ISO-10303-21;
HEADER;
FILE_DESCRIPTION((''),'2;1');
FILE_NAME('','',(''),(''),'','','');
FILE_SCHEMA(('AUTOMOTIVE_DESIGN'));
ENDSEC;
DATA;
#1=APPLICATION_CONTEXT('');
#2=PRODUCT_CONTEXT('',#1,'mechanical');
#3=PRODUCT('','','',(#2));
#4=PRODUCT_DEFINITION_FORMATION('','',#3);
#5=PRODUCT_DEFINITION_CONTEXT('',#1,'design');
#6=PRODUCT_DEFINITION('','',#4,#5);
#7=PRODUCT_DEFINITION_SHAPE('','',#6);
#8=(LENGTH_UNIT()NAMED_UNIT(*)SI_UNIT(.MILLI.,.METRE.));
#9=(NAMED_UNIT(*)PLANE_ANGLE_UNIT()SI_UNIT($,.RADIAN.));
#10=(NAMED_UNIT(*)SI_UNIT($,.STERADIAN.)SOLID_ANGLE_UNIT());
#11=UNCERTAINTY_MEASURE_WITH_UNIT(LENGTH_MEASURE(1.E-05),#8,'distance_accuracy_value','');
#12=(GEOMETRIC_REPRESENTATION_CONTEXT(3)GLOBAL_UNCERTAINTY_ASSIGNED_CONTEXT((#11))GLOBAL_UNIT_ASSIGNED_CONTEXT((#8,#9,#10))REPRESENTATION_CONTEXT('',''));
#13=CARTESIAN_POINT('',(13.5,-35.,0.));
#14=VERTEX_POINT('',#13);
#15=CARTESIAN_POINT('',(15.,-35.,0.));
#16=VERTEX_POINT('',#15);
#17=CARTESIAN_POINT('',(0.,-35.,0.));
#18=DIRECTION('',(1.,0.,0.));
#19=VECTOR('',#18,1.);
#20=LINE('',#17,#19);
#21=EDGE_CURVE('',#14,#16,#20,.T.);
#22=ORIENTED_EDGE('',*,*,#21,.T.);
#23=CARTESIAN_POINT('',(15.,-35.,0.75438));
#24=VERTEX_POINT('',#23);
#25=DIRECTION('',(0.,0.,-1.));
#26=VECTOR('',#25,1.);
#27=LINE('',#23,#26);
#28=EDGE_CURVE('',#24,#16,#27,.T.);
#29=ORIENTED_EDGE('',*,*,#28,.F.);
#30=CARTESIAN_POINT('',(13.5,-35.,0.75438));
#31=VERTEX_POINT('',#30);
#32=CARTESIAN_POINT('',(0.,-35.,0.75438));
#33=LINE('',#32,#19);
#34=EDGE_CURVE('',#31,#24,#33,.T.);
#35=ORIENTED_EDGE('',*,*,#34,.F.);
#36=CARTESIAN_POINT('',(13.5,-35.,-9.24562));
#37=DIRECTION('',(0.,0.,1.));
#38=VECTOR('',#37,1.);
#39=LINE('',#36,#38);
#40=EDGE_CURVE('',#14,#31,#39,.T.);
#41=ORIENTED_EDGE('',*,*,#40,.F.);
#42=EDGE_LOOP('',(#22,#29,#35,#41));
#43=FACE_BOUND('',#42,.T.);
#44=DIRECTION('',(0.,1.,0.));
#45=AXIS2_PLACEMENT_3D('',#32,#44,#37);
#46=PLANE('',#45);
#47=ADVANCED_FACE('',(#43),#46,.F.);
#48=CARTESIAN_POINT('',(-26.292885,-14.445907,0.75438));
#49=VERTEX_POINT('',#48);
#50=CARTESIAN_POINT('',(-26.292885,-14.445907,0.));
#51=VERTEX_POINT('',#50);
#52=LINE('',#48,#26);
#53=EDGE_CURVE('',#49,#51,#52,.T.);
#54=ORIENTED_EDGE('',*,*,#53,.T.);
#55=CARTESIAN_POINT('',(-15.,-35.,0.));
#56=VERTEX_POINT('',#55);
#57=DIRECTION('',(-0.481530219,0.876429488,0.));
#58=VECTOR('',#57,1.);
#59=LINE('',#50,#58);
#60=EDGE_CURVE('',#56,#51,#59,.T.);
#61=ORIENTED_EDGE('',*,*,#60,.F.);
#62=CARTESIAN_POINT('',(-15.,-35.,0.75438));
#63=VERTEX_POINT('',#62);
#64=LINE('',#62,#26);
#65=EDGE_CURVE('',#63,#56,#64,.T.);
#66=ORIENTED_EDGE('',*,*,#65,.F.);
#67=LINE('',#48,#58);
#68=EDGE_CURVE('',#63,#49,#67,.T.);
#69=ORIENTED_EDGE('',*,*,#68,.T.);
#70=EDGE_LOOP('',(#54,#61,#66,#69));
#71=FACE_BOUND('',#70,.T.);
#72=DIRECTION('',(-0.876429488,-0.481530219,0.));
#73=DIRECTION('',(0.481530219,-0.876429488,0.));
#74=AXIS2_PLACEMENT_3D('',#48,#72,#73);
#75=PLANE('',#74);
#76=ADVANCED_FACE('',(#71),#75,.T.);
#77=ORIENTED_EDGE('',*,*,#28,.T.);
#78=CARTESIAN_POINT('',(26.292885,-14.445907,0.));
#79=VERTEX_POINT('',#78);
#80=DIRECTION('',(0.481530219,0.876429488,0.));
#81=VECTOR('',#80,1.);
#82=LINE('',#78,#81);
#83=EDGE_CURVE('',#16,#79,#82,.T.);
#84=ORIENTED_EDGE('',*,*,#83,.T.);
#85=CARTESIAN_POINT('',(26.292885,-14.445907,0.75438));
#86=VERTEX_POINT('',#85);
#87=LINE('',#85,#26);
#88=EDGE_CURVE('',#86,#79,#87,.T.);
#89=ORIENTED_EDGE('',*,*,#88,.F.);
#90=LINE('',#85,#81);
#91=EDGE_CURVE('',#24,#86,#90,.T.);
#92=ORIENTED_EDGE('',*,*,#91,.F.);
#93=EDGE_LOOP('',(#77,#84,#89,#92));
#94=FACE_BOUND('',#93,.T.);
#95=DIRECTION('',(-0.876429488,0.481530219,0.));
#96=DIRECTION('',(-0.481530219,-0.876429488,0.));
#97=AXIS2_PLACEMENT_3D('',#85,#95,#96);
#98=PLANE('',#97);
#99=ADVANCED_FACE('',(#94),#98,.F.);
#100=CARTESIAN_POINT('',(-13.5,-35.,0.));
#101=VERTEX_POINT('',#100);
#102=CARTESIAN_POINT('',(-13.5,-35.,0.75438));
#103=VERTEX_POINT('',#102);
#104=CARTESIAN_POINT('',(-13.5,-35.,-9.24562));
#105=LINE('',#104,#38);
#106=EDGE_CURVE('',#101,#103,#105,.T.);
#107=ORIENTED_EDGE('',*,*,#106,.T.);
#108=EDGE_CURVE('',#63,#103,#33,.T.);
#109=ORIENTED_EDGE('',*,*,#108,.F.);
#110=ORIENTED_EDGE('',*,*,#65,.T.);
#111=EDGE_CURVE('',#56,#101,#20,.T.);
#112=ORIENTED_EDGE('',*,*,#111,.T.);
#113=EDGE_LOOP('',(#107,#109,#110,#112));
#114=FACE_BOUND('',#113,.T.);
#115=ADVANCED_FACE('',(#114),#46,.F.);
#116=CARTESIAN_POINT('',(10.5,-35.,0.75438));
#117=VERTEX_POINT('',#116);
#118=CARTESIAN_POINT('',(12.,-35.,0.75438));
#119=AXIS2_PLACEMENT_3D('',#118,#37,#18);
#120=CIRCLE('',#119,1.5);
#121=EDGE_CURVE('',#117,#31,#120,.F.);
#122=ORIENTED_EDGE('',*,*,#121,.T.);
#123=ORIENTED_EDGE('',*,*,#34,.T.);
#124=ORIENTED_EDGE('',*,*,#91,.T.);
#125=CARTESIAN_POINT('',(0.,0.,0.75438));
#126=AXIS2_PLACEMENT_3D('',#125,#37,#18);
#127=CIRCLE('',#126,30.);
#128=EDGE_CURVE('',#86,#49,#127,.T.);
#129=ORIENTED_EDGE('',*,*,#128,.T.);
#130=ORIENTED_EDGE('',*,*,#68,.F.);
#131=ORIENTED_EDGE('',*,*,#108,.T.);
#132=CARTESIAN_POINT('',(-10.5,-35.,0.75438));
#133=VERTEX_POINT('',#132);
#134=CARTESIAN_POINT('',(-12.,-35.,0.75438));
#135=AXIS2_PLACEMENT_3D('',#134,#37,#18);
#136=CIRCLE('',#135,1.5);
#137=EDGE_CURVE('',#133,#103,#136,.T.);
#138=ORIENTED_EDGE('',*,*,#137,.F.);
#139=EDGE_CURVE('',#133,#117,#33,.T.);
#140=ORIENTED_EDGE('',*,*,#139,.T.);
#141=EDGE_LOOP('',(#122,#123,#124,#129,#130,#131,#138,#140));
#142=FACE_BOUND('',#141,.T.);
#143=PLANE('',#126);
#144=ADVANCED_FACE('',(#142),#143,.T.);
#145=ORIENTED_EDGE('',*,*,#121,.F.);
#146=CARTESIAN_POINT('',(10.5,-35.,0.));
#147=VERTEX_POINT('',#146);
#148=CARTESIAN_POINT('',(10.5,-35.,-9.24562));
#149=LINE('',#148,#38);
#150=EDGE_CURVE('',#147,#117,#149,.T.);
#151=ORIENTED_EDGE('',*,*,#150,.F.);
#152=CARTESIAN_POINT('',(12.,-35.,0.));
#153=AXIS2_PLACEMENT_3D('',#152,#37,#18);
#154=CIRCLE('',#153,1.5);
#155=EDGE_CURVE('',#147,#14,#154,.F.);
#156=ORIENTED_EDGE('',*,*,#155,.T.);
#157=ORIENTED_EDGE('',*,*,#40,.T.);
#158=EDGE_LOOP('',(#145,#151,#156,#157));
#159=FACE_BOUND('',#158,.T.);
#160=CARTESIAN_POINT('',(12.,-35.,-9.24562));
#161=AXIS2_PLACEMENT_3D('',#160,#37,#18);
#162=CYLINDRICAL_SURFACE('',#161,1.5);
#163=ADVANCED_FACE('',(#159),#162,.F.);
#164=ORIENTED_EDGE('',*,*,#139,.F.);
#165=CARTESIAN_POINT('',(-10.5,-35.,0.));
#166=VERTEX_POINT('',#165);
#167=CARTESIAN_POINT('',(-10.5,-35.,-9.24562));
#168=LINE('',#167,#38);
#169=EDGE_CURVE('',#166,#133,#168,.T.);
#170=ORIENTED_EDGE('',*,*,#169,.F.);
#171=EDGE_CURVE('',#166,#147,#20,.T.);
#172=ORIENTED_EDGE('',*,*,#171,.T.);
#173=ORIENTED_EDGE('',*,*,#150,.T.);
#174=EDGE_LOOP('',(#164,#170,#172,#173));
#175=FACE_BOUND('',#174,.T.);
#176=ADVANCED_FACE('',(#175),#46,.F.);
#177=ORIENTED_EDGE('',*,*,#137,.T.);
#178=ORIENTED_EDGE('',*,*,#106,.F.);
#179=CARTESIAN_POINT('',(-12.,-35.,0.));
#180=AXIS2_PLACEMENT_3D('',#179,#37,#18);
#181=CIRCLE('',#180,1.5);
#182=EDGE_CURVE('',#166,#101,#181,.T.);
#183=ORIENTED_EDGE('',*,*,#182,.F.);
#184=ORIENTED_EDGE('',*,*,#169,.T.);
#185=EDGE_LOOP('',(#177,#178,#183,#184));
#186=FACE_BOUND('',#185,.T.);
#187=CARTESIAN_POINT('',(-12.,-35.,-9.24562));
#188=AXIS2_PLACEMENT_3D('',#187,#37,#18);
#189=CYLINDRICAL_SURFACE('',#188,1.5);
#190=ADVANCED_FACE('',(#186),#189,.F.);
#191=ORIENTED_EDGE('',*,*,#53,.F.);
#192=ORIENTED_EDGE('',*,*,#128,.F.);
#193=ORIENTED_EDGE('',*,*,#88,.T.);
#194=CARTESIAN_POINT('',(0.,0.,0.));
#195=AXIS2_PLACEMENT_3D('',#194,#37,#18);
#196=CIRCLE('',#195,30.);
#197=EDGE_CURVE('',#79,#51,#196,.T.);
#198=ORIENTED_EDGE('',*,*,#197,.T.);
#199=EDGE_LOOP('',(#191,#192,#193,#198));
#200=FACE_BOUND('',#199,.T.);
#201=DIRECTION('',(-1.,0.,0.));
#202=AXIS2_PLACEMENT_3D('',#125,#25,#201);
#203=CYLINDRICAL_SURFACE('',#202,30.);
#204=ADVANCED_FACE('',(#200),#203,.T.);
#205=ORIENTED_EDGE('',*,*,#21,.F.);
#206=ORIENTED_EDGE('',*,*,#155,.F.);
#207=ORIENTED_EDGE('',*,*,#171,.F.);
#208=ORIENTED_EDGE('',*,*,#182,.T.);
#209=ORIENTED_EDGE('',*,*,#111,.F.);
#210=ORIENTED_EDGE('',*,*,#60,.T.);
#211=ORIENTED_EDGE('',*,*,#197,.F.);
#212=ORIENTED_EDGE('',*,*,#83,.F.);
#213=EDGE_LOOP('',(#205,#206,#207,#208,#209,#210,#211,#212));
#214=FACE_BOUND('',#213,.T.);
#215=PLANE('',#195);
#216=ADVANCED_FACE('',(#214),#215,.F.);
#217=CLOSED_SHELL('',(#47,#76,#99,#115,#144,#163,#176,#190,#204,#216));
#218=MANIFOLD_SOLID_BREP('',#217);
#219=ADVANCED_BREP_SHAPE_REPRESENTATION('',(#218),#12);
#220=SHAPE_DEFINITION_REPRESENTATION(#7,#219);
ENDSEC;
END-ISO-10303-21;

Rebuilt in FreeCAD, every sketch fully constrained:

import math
import FreeCAD as App
import Part
import Sketcher

V = App.Vector

doc = App.newDocument("Part")
params = doc.addObject("Spreadsheet::Sheet", "Params")
for row, (alias, value) in enumerate([
    ("sketch1_radius", "30 mm"),
    ("sketch1_width", "30 mm"),
    ("pad1_length", "0.75438 mm"),
    ("sketch2_diameter", "3 mm"),
    ("pocket1_length", "10 mm"),
], start=1):
    params.set(f"A{row}", alias)
    params.set(f"B{row}", "=" + value)
    params.setAlias(f"B{row}", alias)

body = doc.addObject("PartDesign::Body", "Body")

# Sketch on XY plane
sketch1 = body.newObject("Sketcher::SketchObject", "Sketch")
sketch1.AttachmentSupport = (doc.getObject("XY_Plane"), [""])
sketch1.MapMode = "FlatFace"
sketch1.addGeometry([
    Part.LineSegment(V(-26, -14, 0), V(-15, -35, 0)),
    Part.LineSegment(V(-15, -35, 0), V(15, -35, 0)),
    Part.LineSegment(V(15, -35, 0), V(26, -14, 0)),
    Part.ArcOfCircle(Part.Circle(V(0, 0, 0), V(0, 0, 1), 30), math.radians(-29), math.radians(209)),
], False)
sketch1.addConstraint([
    Sketcher.Constraint("Coincident", 0, 2, 1, 1),
    Sketcher.Constraint("Coincident", 1, 2, 2, 1),
    Sketcher.Constraint("Tangent", 2, 2, 3, 1),
    Sketcher.Constraint("Tangent", 3, 2, 0, 1),
    Sketcher.Constraint("Horizontal", 1),
    Sketcher.Constraint("Coincident", 3, 3, -1, 1),
    Sketcher.Constraint("Horizontal", 2, 2, 3, 2),
    Sketcher.Constraint("Radius", 3, 30.0),
    Sketcher.Constraint("DistanceX", 1, 1, 1, 2, 30.0),
    Sketcher.Constraint("DistanceY", 0, 2, -1, 1, 35.0),
])
sketch1.setExpression("Constraints[7]", "Params.sketch1_radius")
sketch1.setExpression("Constraints[8]", "Params.sketch1_width")
pad1 = body.newObject("PartDesign::Pad", "Pad")
pad1.Profile = sketch1
pad1.setExpression("Length", "Params.pad1_length")

# Sketch on XY plane
sketch2 = body.newObject("Sketcher::SketchObject", "Sketch001")
sketch2.AttachmentSupport = (doc.getObject("XY_Plane"), [""])
sketch2.MapMode = "FlatFace"
sketch2.AttachmentOffset = App.Placement(V(0, 0, 0.75438), App.Rotation())
sketch2.addGeometry([
    Part.Circle(V(12, -35, 0), V(0, 0, 1), 1.5),
    Part.Circle(V(-12, -35, 0), V(0, 0, 1), 1.5),
], False)
sketch2.addConstraint([
    Sketcher.Constraint("Equal", 0, 1),
    Sketcher.Constraint("Symmetric", 0, 3, 1, 3, -2),
    Sketcher.Constraint("Diameter", 0, 3.0),
    Sketcher.Constraint("DistanceX", -1, 1, 0, 3, 12.0),
    Sketcher.Constraint("DistanceY", 0, 3, -1, 1, 35.0),
])
sketch2.setExpression("Constraints[2]", "Params.sketch2_diameter")
pocket1 = body.newObject("PartDesign::Pocket", "Pocket")
pocket1.Profile = sketch2
pocket1.setExpression("Length", "Params.pocket1_length")

doc.recompute()
